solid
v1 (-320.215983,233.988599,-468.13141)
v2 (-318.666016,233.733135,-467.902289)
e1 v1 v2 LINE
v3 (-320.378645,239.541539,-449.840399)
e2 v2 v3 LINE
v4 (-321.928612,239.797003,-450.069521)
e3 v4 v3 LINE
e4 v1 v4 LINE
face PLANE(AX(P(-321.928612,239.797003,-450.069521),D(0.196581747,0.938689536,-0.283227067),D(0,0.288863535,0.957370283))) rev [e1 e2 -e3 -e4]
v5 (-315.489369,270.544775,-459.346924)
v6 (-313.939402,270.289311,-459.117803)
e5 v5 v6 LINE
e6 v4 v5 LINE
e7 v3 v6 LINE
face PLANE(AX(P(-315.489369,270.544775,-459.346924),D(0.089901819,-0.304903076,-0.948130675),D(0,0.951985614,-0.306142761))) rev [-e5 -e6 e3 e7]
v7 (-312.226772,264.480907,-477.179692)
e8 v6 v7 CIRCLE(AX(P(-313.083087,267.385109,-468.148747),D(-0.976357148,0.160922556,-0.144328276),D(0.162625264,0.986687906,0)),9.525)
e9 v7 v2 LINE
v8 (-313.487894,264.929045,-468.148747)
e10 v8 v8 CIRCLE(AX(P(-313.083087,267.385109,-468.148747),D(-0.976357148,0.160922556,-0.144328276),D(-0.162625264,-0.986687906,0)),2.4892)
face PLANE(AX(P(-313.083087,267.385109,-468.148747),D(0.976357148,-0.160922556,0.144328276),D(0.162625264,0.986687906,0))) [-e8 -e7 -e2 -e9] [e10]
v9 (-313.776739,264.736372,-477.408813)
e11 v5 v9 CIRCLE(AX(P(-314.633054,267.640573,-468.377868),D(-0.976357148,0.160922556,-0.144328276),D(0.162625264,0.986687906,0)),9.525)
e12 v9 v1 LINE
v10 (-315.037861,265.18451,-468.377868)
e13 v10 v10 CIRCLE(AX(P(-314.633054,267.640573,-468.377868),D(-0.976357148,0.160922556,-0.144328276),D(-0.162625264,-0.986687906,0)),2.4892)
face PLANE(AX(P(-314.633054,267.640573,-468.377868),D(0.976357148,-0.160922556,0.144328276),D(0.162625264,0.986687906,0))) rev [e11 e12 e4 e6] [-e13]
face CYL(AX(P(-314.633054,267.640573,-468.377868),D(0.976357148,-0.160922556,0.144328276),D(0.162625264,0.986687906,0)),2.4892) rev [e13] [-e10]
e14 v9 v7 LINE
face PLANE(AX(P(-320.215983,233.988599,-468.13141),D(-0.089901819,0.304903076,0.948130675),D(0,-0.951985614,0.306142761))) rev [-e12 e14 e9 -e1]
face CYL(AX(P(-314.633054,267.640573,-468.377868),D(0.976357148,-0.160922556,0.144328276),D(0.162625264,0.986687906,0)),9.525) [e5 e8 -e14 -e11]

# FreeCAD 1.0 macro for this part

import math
import FreeCAD as App
import Part
import Sketcher

V = App.Vector
Q = App.Units.Quantity

doc = App.newDocument("Part")
body = doc.addObject("PartDesign::Body", "Body")

sketch1 = doc.addObject("Sketcher::SketchObject", "Sketch")
body.addObject(sketch1)
sketch1.Placement = App.Placement(V(-406.434347, 66.988247, -60.080442), App.Rotation(V(-0.142406965, 0.023471424, 0.989529862), V(0.162625265, 0.986687906, 0), V(-0.976357148, 0.160922556, -0.144328276), "ZXY"))
sketch1.addGeometry([
    Part.LineSegment(V(-421.512544, 210.184151, 0), V(-412.136978, 178.798512, 0)),
    Part.LineSegment(V(-412.136978, 178.798512, 0), V(-393.883977, 184.251077, 0)),
    Part.LineSegment(V(-393.883977, 184.251077, 0), V(-403.259543, 215.636716, 0)),
    Part.ArcOfCircle(Part.Circle(V(-412.386044, 212.910433, 0), V(0, 0, 1), 9.525), math.radians(16.632019), math.radians(196.632019)),
    Part.Circle(V(-412.386044, 212.910433, 0), V(0, 0, 1), 2.4892),
], False)
sketch1.addConstraint([
    Sketcher.Constraint("Coincident", 0, 2, 1, 1),
    Sketcher.Constraint("Coincident", 1, 2, 2, 1),
    Sketcher.Constraint("Tangent", 2, 2, 3, 1),
    Sketcher.Constraint("Tangent", 3, 2, 0, 1),
    Sketcher.Constraint("Coincident", 4, 3, 3, 3),
    Sketcher.Constraint("Perpendicular", 0, 1),
    Sketcher.Constraint("Perpendicular", 1, 2),
    Sketcher.Constraint("Diameter", 4, Q("0.196 in")),
    Sketcher.Constraint("Radius", 3, Q("0.375 in")),
    Sketcher.Constraint("DistanceX", 0, 2, 1, 2, 18.253001),
    Sketcher.Constraint("Distance", 0, 32.756061),
    Sketcher.Constraint("DistanceY", -1, 1, 3, 2, 210.184151),
    Sketcher.Constraint("DistanceX", 3, 3, -1, 1, 412.386044),
])
pad1 = doc.addObject("PartDesign::Pad", "Pad")
body.addObject(pad1)
pad1.Profile = sketch1
pad1.Length = Q("0.0625 in")

doc.recompute()
